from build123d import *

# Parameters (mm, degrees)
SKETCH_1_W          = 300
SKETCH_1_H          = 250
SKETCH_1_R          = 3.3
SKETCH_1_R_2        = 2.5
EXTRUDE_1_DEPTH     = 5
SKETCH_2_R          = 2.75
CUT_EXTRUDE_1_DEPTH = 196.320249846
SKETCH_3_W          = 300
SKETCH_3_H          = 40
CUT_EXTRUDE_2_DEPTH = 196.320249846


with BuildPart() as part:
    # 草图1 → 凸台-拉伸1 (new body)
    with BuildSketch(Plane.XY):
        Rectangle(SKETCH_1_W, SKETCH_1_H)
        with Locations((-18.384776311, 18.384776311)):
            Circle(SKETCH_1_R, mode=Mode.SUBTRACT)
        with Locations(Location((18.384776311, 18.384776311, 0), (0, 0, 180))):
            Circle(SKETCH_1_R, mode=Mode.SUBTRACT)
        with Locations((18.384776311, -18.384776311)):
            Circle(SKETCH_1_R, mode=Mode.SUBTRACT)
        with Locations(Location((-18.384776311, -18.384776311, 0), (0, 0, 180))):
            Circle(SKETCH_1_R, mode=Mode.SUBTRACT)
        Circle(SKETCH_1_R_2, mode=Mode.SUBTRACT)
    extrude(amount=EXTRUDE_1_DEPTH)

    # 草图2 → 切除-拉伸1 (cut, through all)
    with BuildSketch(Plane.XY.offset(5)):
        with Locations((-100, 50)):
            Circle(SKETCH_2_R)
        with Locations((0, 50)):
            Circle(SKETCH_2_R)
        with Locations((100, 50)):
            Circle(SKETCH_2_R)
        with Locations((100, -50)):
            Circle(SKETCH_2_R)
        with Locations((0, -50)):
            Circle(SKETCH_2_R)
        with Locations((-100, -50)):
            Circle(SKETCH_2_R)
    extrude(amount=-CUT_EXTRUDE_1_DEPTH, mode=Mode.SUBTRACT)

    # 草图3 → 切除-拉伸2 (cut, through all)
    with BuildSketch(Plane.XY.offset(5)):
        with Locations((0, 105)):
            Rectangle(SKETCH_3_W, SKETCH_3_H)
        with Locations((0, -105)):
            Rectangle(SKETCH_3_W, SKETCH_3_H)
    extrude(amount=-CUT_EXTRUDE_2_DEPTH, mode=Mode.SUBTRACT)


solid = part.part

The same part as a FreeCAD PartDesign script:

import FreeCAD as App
import Part
import Sketcher

V = App.Vector

doc = App.newDocument("Part")
body = doc.addObject("PartDesign::Body", "Body")

# Sketch on XY plane
sketch1 = doc.addObject("Sketcher::SketchObject", "Sketch")
body.addObject(sketch1)
sketch1.AttachmentSupport = (doc.XY_Plane, [""])
sketch1.MapMode = "FlatFace"
sketch1.addGeometry([
    Part.LineSegment(V(-150, 125, 0), V(-150, -125, 0)),  # 0
    Part.LineSegment(V(-150, -125, 0), V(150, -125, 0)),  # 1
    Part.LineSegment(V(150, -125, 0), V(150, 125, 0)),  # 2
    Part.LineSegment(V(150, 125, 0), V(-150, 125, 0)),  # 3
    Part.Circle(V(-18.4, -18.4, 0), V(0, 0, 1), 3.3),  # 4
    Part.Circle(V(18.4, -18.4, 0), V(0, 0, 1), 3.3),  # 5
    Part.Circle(V(-18.4, 18.4, 0), V(0, 0, 1), 3.3),  # 6
    Part.Circle(V(0, 0, 0), V(0, 0, 1), 2.5),  # 7
    Part.Circle(V(18.4, 18.4, 0), V(0, 0, 1), 3.3),  # 8
], False)
sketch1.addConstraint([
    Sketcher.Constraint("Coincident", 0, 2, 1, 1),
    Sketcher.Constraint("Coincident", 1, 2, 2, 1),
    Sketcher.Constraint("Coincident", 2, 2, 3, 1),
    Sketcher.Constraint("Coincident", 3, 2, 0, 1),
    Sketcher.Constraint("Vertical", 0),
    Sketcher.Constraint("Horizontal", 1),
    Sketcher.Constraint("Vertical", 2),
    Sketcher.Constraint("Horizontal", 3),
    Sketcher.Constraint("Coincident", 7, 3, -1, 1),
    Sketcher.Constraint("Equal", 4, 5),
    Sketcher.Constraint("Equal", 5, 6),
    Sketcher.Constraint("Equal", 6, 8),
    Sketcher.Constraint("Symmetric", 5, 3, 6, 3, -1, 1),
    Sketcher.Constraint("Symmetric", 4, 3, 8, 3, -1, 1),
    Sketcher.Constraint("Symmetric", 0, 2, 2, 2, -1, 1),
    Sketcher.Constraint("Symmetric", 4, 3, 5, 3, -2),
    Sketcher.Constraint("Diameter", 7, 5.0),
    Sketcher.Constraint("Diameter", 4, 6.6),
    Sketcher.Constraint("DistanceX", 1, 1, 1, 2, 300.0),
    Sketcher.Constraint("DistanceY", 0, 2, 0, 1, 250.0),
    Sketcher.Constraint("DistanceX", 4, 3, -1, 1, 18.384776),
    Sketcher.Constraint("DistanceY", 4, 3, -1, 1, 18.384776),
])
pad1 = doc.addObject("PartDesign::Pad", "Pad")
body.addObject(pad1)
pad1.Profile = sketch1
pad1.Length = 5

# Sketch on XY plane
sketch2 = doc.addObject("Sketcher::SketchObject", "Sketch001")
body.addObject(sketch2)
sketch2.AttachmentSupport = (doc.XY_Plane, [""])
sketch2.MapMode = "FlatFace"
sketch2.AttachmentOffset = App.Placement(V(0, 0, 5), App.Rotation())
sketch2.addGeometry([
    Part.Circle(V(-100, 50, 0), V(0, 0, 1), 2.8),  # 0
    Part.Circle(V(0, 50, 0), V(0, 0, 1), 2.8),  # 1
    Part.Circle(V(100, 50, 0), V(0, 0, 1), 2.8),  # 2
    Part.Circle(V(100, -50, 0), V(0, 0, 1), 2.8),  # 3
    Part.Circle(V(0, -50, 0), V(0, 0, 1), 2.8),  # 4
    Part.Circle(V(-100, -50, 0), V(0, 0, 1), 2.8),  # 5
], False)
sketch2.addConstraint([
    Sketcher.Constraint("Equal", 0, 1),
    Sketcher.Constraint("Equal", 1, 2),
    Sketcher.Constraint("Equal", 2, 3),
    Sketcher.Constraint("Equal", 3, 4),
    Sketcher.Constraint("Equal", 4, 5),
    Sketcher.Constraint("Symmetric", 0, 3, 3, 3, -1, 1),
    Sketcher.Constraint("Symmetric", 1, 3, 4, 3, -1, 1),
    Sketcher.Constraint("Symmetric", 2, 3, 5, 3, -1, 1),
    Sketcher.Constraint("Symmetric", 0, 3, 2, 3, -2),
    Sketcher.Constraint("PointOnObject", 1, 3, -2),
    Sketcher.Constraint("Horizontal", 0, 3, 1, 3),
    Sketcher.Constraint("Diameter", 0, 5.5),
    Sketcher.Constraint("DistanceX", 0, 3, -1, 1, 100.0),
    Sketcher.Constraint("DistanceY", -1, 1, 0, 3, 50.0),
])
pocket1 = doc.addObject("PartDesign::Pocket", "Pocket")
body.addObject(pocket1)
pocket1.Profile = sketch2
pocket1.Type = "ThroughAll"

# Sketch on XY plane
sketch3 = doc.addObject("Sketcher::SketchObject", "Sketch002")
body.addObject(sketch3)
sketch3.AttachmentSupport = (doc.XY_Plane, [""])
sketch3.MapMode = "FlatFace"
sketch3.AttachmentOffset = App.Placement(V(0, 0, 5), App.Rotation())
sketch3.addGeometry([
    Part.LineSegment(V(-150, 125, 0), V(-150, 85, 0)),  # 0
    Part.LineSegment(V(-150, 85, 0), V(150, 85, 0)),  # 1
    Part.LineSegment(V(150, 85, 0), V(150, 125, 0)),  # 2
    Part.LineSegment(V(150, 125, 0), V(-150, 125, 0)),  # 3
    Part.LineSegment(V(-150, -85, 0), V(-150, -125, 0)),  # 4
    Part.LineSegment(V(-150, -125, 0), V(150, -125, 0)),  # 5
    Part.LineSegment(V(150, -125, 0), V(150, -85, 0)),  # 6
    Part.LineSegment(V(150, -85, 0), V(-150, -85, 0)),  # 7
], False)
sketch3.addConstraint([
    Sketcher.Constraint("Coincident", 0, 2, 1, 1),
    Sketcher.Constraint("Coincident", 1, 2, 2, 1),
    Sketcher.Constraint("Coincident", 2, 2, 3, 1),
    Sketcher.Constraint("Coincident", 3, 2, 0, 1),
    Sketcher.Constraint("Coincident", 4, 2, 5, 1),
    Sketcher.Constraint("Coincident", 5, 2, 6, 1),
    Sketcher.Constraint("Coincident", 6, 2, 7, 1),
    Sketcher.Constraint("Coincident", 7, 2, 4, 1),
    Sketcher.Constraint("Vertical", 0),
    Sketcher.Constraint("Horizontal", 1),
    Sketcher.Constraint("Vertical", 2),
    Sketcher.Constraint("Horizontal", 3),
    Sketcher.Constraint("Vertical", 4),
    Sketcher.Constraint("Horizontal", 5),
    Sketcher.Constraint("Vertical", 6),
    Sketcher.Constraint("Horizontal", 7),
    Sketcher.Constraint("Symmetric", 2, 2, 4, 2, -1, 1),
    Sketcher.Constraint("Symmetric", 0, 2, 6, 2, -1, 1),
    Sketcher.Constraint("Vertical", 3, 2, 4, 2),
    Sketcher.Constraint("DistanceX", 1, 1, 1, 2, 300.0),
    Sketcher.Constraint("DistanceY", 0, 2, 0, 1, 40.0),
    Sketcher.Constraint("DistanceY", -1, 1, 0, 2, 85.0),
])
pocket2 = doc.addObject("PartDesign::Pocket", "Pocket001")
body.addObject(pocket2)
pocket2.Profile = sketch3
pocket2.Type = "ThroughAll"

doc.recompute()
